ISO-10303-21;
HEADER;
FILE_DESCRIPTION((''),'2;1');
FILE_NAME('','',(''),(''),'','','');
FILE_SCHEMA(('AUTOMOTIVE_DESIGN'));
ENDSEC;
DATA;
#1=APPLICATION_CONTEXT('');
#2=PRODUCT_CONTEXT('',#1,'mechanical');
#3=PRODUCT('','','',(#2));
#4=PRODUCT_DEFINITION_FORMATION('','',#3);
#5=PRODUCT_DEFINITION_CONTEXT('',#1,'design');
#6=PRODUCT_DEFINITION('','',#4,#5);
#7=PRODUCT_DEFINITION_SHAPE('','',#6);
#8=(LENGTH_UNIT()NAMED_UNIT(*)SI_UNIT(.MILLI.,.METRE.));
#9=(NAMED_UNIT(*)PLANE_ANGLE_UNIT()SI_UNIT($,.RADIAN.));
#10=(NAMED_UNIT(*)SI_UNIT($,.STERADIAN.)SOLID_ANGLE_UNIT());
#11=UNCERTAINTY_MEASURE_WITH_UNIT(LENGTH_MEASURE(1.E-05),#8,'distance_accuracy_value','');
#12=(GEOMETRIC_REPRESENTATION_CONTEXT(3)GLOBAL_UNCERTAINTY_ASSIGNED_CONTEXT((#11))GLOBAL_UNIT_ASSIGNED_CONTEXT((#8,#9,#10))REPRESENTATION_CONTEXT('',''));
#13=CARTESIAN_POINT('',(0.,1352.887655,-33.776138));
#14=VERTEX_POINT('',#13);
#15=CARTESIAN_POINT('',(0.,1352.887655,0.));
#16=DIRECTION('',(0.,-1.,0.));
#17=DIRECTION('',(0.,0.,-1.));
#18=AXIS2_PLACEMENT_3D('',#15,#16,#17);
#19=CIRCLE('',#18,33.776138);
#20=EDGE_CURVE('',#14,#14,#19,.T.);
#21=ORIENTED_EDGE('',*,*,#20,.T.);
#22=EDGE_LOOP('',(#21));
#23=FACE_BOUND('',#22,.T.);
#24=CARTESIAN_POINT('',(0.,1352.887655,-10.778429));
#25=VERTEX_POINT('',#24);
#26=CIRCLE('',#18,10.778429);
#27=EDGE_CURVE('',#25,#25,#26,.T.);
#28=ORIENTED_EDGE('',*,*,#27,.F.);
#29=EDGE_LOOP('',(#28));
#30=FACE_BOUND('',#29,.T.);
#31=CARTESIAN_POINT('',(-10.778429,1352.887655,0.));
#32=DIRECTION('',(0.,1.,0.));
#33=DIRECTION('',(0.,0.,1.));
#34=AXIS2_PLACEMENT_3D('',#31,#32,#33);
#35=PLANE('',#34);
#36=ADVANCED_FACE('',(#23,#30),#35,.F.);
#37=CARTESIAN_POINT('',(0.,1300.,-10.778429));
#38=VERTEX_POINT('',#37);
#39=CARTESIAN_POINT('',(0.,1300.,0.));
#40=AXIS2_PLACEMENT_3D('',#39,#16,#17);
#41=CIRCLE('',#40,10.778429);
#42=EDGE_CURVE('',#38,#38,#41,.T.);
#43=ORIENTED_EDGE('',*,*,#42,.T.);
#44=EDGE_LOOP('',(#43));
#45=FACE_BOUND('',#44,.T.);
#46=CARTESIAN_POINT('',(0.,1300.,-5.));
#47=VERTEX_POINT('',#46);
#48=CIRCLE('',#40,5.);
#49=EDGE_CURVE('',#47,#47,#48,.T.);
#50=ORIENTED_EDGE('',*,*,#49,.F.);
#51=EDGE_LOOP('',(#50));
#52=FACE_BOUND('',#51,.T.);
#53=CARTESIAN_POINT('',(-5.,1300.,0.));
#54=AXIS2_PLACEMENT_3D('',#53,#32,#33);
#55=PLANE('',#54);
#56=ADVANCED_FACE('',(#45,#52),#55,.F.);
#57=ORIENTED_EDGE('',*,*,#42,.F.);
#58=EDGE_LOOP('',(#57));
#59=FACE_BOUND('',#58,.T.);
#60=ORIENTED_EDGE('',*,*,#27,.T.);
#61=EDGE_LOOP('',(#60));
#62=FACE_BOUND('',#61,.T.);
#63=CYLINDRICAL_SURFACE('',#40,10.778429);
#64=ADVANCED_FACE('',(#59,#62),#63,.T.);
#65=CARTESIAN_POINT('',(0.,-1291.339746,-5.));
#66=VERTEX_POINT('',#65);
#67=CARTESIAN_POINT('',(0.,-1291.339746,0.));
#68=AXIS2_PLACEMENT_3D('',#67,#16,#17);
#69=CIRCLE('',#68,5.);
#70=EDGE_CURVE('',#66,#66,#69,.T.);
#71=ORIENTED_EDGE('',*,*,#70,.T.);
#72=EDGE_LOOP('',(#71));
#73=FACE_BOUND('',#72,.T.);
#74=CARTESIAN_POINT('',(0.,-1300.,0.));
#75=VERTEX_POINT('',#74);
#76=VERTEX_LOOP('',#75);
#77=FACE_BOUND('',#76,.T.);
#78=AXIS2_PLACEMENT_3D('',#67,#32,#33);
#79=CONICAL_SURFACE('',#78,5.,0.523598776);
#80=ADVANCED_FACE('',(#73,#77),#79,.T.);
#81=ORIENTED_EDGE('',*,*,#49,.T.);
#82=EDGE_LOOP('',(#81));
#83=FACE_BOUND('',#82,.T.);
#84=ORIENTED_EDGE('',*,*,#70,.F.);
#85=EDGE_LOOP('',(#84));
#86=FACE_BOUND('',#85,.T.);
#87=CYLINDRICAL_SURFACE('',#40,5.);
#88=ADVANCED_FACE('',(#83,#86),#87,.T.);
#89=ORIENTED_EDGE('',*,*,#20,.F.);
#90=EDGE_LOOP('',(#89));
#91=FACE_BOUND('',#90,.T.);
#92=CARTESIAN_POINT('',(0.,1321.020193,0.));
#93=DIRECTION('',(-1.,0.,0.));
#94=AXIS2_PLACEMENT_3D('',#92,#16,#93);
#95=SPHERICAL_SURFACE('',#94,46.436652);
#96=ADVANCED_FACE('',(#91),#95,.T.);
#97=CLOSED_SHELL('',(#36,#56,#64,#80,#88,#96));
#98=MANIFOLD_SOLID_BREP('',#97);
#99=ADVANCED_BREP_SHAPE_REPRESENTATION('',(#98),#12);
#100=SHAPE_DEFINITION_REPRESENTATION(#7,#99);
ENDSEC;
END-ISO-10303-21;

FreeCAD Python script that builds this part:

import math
import FreeCAD as App
import Part
import Sketcher
from FreeCAD import Vector
Q = App.Units.Quantity

doc = App.newDocument("Part")
params = doc.addObject("Spreadsheet::Sheet", "Params")
for row, (alias, value) in enumerate([
    ("sketch1_length", "10 mm"),
    ("revolution_angle", "360 deg"),
], start=1):
    params.set(f"A{row}", alias)
    params.set(f"B{row}", "=" + value)
    params.setAlias(f"B{row}", alias)

body = doc.addObject("PartDesign::Body", "Body")

# Sketch on XY plane
sketch1 = body.newObject("Sketcher::SketchObject", "Sketch")
sketch1.AttachmentSupport = (doc.getObject("XY_Plane"), [""])
sketch1.MapMode = "FlatFace"
sketch1.addGeometry([
    Part.LineSegment(Vector(-5, 1300, 0), Vector(-5, -1291, 0)),  # 0
    Part.LineSegment(Vector(-5, -1291, 0), Vector(0, -1300, 0)),  # 1
    Part.LineSegment(Vector(0, -1300, 0), Vector(0, 1367, 0)),  # 2
    Part.ArcOfCircle(Part.Circle(Vector(0, 1321, 0), Vector(0, 0, 1), 46), math.radians(90), math.radians(137)),  # 3
    Part.LineSegment(Vector(-34, 1353, 0), Vector(-11, 1353, 0)),  # 4
    Part.LineSegment(Vector(-11, 1353, 0), Vector(-11, 1300, 0)),  # 5
    Part.LineSegment(Vector(-11, 1300, 0), Vector(-5, 1300, 0)),  # 6
], False)
sketch1.addConstraint([
    Sketcher.Constraint("Coincident", 0, 2, 1, 1),
    Sketcher.Constraint("Coincident", 1, 2, 2, 1),
    Sketcher.Constraint("Coincident", 2, 2, 3, 1),
    Sketcher.Constraint("Coincident", 3, 2, 4, 1),
    Sketcher.Constraint("Coincident", 4, 2, 5, 1),
    Sketcher.Constraint("Coincident", 5, 2, 6, 1),
    Sketcher.Constraint("Coincident", 6, 2, 0, 1),
    Sketcher.Constraint("Vertical", 0),
    Sketcher.Constraint("Vertical", 2),
    Sketcher.Constraint("Horizontal", 4),
    Sketcher.Constraint("Vertical", 5),
    Sketcher.Constraint("Horizontal", 6),
    Sketcher.Constraint("PointOnObject", 3, 3, -2),
    Sketcher.Constraint("PointOnObject", 1, 2, -2),
    Sketcher.Constraint("Angle", 1, Q("-60 deg")),
    Sketcher.Constraint("Distance", 1, 10.0),
    Sketcher.Constraint("DistanceY", 1, 2, -1, 1, 1300.0),
    Sketcher.Constraint("DistanceY", -1, 1, 5, 2, 1300.0),
    Sketcher.Constraint("Radius", 3, 46.436652),
    Sketcher.Constraint("DistanceX", 4, 1, 4, 2, 22.997708),
    Sketcher.Constraint("DistanceX", 6, 1, 6, 2, 5.778429),
    Sketcher.Constraint("DistanceY", 0, 2, 3, 2, 2644.227401),
])
sketch1.setExpression("Constraints[15]", "Params.sketch1_length")
revolution = body.newObject("PartDesign::Revolution", "Revolution")
revolution.Profile = sketch1
revolution.ReferenceAxis = (sketch1, ["V_Axis"])
revolution.setExpression("Angle", "Params.revolution_angle")

doc.recompute()
